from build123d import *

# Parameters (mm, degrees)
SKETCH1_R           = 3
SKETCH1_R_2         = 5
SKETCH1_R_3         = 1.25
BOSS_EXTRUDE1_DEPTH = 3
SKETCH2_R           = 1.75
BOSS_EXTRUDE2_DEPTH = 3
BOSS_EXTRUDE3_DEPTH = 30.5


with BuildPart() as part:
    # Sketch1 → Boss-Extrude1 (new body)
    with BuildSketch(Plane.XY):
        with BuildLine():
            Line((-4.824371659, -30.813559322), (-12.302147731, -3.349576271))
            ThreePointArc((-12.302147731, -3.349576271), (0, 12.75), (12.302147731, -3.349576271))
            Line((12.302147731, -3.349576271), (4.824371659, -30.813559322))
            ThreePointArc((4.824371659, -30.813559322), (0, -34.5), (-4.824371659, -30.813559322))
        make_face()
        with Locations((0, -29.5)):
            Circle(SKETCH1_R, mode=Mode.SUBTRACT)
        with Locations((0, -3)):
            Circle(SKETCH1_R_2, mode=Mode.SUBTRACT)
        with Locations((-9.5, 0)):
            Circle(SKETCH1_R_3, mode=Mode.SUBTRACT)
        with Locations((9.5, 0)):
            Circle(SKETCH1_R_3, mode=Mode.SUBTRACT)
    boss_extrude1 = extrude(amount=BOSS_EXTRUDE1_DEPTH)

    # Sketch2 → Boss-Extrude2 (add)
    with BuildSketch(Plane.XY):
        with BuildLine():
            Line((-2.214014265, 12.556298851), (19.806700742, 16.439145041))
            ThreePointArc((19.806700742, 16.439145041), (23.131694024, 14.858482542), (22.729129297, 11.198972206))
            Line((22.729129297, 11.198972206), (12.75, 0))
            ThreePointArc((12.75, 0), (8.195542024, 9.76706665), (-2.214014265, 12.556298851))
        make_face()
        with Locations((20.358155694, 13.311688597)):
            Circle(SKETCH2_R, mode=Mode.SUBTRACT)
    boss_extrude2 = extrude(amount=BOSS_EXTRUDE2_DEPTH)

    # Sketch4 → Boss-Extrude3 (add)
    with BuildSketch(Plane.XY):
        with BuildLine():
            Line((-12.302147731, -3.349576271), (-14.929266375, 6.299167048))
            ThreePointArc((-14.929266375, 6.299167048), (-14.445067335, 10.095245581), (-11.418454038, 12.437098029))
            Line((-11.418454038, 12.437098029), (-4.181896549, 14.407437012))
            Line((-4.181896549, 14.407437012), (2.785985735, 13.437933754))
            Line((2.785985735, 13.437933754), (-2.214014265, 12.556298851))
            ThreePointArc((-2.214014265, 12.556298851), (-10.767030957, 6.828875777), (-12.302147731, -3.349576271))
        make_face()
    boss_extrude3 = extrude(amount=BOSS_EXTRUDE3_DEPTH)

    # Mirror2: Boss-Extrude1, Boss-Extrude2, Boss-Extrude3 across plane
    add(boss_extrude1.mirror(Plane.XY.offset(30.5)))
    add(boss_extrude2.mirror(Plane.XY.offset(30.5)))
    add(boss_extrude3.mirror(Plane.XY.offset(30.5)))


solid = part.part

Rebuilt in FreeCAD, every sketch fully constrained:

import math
import FreeCAD as App
import Part
import Sketcher
from FreeCAD import Vector
Q = App.Units.Quantity

doc = App.newDocument("Part")
body = doc.addObject("PartDesign::Body", "Body")

# Sketch on XY plane
sketch1 = body.newObject("Sketcher::SketchObject", "Sketch")
sketch1.AttachmentSupport = (doc.getObject("XY_Plane"), [""])
sketch1.MapMode = "FlatFace"
sketch1.addGeometry([
    Part.LineSegment(Vector(-12.3, -3.3, 0), Vector(-4.8, -30.8, 0)),  # 0
    Part.ArcOfCircle(Part.Circle(Vector(0, -29.5, 0), Vector(0, 0, 1), 5), math.radians(-165), math.radians(-15)),  # 1
    Part.LineSegment(Vector(4.8, -30.8, 0), Vector(12.3, -3.3, 0)),  # 2
    Part.ArcOfCircle(Part.Circle(Vector(0, 0, 0), Vector(0, 0, 1), 12.8), math.radians(-15), math.radians(195)),  # 3
    Part.Circle(Vector(0, -29.5, 0), Vector(0, 0, 1), 3),  # 4
    Part.Circle(Vector(9.5, 0, 0), Vector(0, 0, 1), 1.2),  # 5
    Part.Circle(Vector(0, -3, 0), Vector(0, 0, 1), 5),  # 6
    Part.Circle(Vector(-9.5, 0, 0), Vector(0, 0, 1), 1.2),  # 7
], False)
sketch1.addConstraint([
    Sketcher.Constraint("Tangent", 0, 2, 1, 1),
    Sketcher.Constraint("Tangent", 1, 2, 2, 1),
    Sketcher.Constraint("Tangent", 2, 2, 3, 1),
    Sketcher.Constraint("Tangent", 3, 2, 0, 1),
    Sketcher.Constraint("Coincident", 3, 3, -1, 1),
    Sketcher.Constraint("Coincident", 4, 3, 1, 3),
    Sketcher.Constraint("Equal", 1, 6),
    Sketcher.Constraint("Equal", 5, 7),
    Sketcher.Constraint("Symmetric", 5, 3, 7, 3, -1, 1),
    Sketcher.Constraint("PointOnObject", 1, 3, -2),
    Sketcher.Constraint("PointOnObject", 5, 3, -1),
    Sketcher.Constraint("PointOnObject", 6, 3, -2),
    Sketcher.Constraint("Diameter", 4, 6.0),
    Sketcher.Constraint("Diameter", 6, 10.0),
    Sketcher.Constraint("Diameter", 5, 2.5),
    Sketcher.Constraint("Radius", 3, 12.75),
    Sketcher.Constraint("DistanceY", 6, 3, -1, 1, 3.0),
    Sketcher.Constraint("DistanceX", 7, 3, 5, 3, 19.0),
    Sketcher.Constraint("DistanceY", 1, 3, -1, 1, 29.5),
])
pad1 = body.newObject("PartDesign::Pad", "Pad")
pad1.Profile = sketch1
pad1.Length = 3

# Sketch on XY plane
sketch2 = body.newObject("Sketcher::SketchObject", "Sketch001")
sketch2.AttachmentSupport = (doc.getObject("XY_Plane"), [""])
sketch2.MapMode = "FlatFace"
sketch2.addGeometry([
    Part.LineSegment(Vector(19.8, 16.4, 0), Vector(-2.2, 12.6, 0)),  # 0
    Part.ArcOfCircle(Part.Circle(Vector(0, 0, 0), Vector(0, 0, 1), 12.7), math.radians(0), math.radians(100)),  # 1
    Part.LineSegment(Vector(12.8, 0, 0), Vector(22.7, 11.2, 0)),  # 2
    Part.ArcOfCircle(Part.Circle(Vector(20.4, 13.3, 0), Vector(0, 0, 1), 3.2), math.radians(-42), math.radians(100)),  # 3
    Part.Circle(Vector(20.4, 13.3, 0), Vector(0, 0, 1), 1.8),  # 4
], False)
sketch2.addConstraint([
    Sketcher.Constraint("Tangent", 0, 2, 1, 2),
    Sketcher.Constraint("Coincident", 1, 1, 2, 1),
    Sketcher.Constraint("Tangent", 2, 2, 3, 1),
    Sketcher.Constraint("Tangent", 3, 2, 0, 1),
    Sketcher.Constraint("Coincident", 1, 3, -1, 1),
    Sketcher.Constraint("Coincident", 4, 3, 3, 3),
    Sketcher.Constraint("PointOnObject", 1, 1, -1),
    Sketcher.Constraint("Diameter", 4, 3.5),
    Sketcher.Constraint("Angle", 0, Q("-170 deg")),
    Sketcher.Constraint("Radius", 1, 12.75),
    Sketcher.Constraint("Distance", 2, 15.0),
    Sketcher.Constraint("Radius", 3, 3.175703),
])
pad2 = body.newObject("PartDesign::Pad", "Pad001")
pad2.Profile = sketch2
pad2.Length = 3

# Sketch on XY plane
sketch3 = body.newObject("Sketcher::SketchObject", "Sketch002")
sketch3.AttachmentSupport = (doc.getObject("XY_Plane"), [""])
sketch3.MapMode = "FlatFace"
sketch3.addGeometry([
    Part.LineSegment(Vector(-15, 6, 0), Vector(-12, -3, 0)),  # 0
    Part.ArcOfCircle(Part.Circle(Vector(0, 0, 0), Vector(0, 0, 1), 13), math.radians(100), math.radians(195)),  # 1
    Part.LineSegment(Vector(-2, 13, 0), Vector(3, 13, 0)),  # 2
    Part.LineSegment(Vector(3, 13, 0), Vector(-4, 14, 0)),  # 3
    Part.LineSegment(Vector(-4, 14, 0), Vector(-11, 12, 0)),  # 4
    Part.ArcOfCircle(Part.Circle(Vector(-10, 8, 0), Vector(0, 0, 1), 5), math.radians(105), math.radians(195)),  # 5
], False)
sketch3.addConstraint([
    Sketcher.Constraint("Tangent", 0, 2, 1, 2),
    Sketcher.Constraint("Tangent", 1, 1, 2, 1),
    Sketcher.Constraint("Coincident", 2, 2, 3, 1),
    Sketcher.Constraint("Coincident", 3, 2, 4, 1),
    Sketcher.Constraint("Tangent", 4, 2, 5, 1),
    Sketcher.Constraint("Tangent", 5, 2, 0, 1),
    Sketcher.Constraint("Coincident", 1, 3, -1, 1),
    Sketcher.Constraint("Perpendicular", 0, 4),
    Sketcher.Constraint("Radius", 5, 5.0),
    Sketcher.Constraint("Angle", 2, Q("10 deg")),
    Sketcher.Constraint("Radius", 1, 12.75),
    Sketcher.Constraint("Distance", 0, 10.0),
    Sketcher.Constraint("DistanceX", 1, 1, 2, 2, 5.0),
    Sketcher.Constraint("Distance", 4, 7.5),
    Sketcher.Constraint("DistanceX", 5, 3, 3, 2, 5.922998),
])
pad3 = body.newObject("PartDesign::Pad", "Pad002")
pad3.Profile = sketch3
pad3.Length = 30.5
doc.recompute()

datumplane = body.newObject("PartDesign::Plane", "DatumPlane")
datumplane.AttachmentSupport = (doc.getObject("XY_Plane"), [""])
datumplane.MapMode = "FlatFace"
datumplane.AttachmentOffset = App.Placement(Vector(0, 0, 30.5), App.Rotation())
mirrored = body.newObject("PartDesign::Mirrored", "Mirrored")
mirrored.Originals = [pad1, pad2, pad3]
mirrored.MirrorPlane = (datumplane, [""])
body.Tip = mirrored

doc.recompute()
